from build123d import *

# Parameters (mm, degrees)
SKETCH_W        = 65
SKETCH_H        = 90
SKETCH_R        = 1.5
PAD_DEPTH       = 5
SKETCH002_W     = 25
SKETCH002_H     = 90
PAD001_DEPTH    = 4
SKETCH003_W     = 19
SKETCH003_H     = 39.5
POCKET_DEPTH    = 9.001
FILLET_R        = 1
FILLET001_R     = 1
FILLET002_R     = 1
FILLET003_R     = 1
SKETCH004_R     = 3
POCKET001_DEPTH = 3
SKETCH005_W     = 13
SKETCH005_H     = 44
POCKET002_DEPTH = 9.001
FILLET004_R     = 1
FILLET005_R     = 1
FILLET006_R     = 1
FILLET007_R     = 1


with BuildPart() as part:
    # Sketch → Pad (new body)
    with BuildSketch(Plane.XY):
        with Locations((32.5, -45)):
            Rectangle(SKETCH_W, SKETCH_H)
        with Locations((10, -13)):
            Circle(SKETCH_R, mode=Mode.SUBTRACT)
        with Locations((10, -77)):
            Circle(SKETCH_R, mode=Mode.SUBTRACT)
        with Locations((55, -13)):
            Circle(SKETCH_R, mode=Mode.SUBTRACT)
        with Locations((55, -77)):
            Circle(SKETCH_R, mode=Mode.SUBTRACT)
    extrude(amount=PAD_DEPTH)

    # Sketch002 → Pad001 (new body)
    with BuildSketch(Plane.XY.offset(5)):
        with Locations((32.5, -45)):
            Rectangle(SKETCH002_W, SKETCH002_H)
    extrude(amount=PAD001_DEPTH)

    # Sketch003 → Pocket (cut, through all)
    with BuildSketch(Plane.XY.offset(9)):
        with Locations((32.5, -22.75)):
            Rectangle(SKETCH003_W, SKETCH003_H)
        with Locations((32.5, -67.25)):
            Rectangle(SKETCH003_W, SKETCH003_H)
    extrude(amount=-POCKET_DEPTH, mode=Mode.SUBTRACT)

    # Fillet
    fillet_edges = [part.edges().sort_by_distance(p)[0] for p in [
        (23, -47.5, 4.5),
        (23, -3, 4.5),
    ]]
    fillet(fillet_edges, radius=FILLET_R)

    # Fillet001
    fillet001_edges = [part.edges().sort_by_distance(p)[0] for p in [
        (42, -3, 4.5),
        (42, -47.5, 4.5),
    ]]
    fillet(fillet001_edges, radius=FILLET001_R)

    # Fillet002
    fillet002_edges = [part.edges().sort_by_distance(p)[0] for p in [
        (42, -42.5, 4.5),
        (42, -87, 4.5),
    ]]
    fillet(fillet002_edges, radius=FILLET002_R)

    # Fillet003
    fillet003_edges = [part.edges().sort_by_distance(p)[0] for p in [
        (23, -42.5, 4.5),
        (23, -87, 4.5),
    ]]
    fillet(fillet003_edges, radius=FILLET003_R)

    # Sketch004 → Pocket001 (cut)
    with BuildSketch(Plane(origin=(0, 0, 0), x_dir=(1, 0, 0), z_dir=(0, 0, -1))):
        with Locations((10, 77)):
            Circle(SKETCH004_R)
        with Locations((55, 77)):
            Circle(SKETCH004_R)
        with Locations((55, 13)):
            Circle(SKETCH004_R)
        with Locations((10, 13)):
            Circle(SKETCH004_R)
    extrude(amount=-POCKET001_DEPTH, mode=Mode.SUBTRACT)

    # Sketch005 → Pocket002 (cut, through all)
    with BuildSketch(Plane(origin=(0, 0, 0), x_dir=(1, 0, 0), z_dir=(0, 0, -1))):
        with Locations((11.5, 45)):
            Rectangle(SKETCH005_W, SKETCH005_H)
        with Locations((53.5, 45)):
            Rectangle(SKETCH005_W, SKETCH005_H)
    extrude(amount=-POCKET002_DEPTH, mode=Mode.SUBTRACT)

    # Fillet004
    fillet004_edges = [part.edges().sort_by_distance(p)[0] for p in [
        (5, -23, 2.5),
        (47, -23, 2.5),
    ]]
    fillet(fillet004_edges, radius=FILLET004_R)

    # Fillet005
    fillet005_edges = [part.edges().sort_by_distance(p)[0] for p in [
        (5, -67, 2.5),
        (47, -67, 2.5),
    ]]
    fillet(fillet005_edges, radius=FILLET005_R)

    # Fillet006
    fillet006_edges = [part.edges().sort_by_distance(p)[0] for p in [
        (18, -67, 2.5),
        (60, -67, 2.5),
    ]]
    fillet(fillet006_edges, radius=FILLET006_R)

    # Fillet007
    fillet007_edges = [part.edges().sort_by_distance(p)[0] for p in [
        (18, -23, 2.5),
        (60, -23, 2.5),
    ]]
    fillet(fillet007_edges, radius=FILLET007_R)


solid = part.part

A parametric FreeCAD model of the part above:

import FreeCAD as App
import Part
import Sketcher

V = App.Vector
Q = App.Units.Quantity


def edges_at(feature, points):
    """Names of the edges that pass closest to the given points."""
    edges = feature.Shape.Edges
    near = lambda p: min(range(len(edges)), key=lambda i: edges[i].distToShape(Part.Vertex(*p))[0])
    return sorted({f"Edge{near(p) + 1}" for p in points})

doc = App.newDocument("Part")
params = doc.addObject("Spreadsheet::Sheet", "Params")
for row, (alias, value) in enumerate([
    ("sketch1_diameter", "3 mm"),
    ("sketch1_width", "65 mm"),
    ("sketch1_height", "90 mm"),
    ("pad1_length", "5 mm"),
    ("sketch2_width", "25 mm"),
    ("sketch2_height", "90 mm"),
    ("pad2_length", "4 mm"),
    ("sketch3_width", "19 mm"),
    ("sketch3_height", "39.5 mm"),
    ("fillet_radius", "1 mm"),
    ("fillet2_radius", "1 mm"),
    ("fillet3_radius", "1 mm"),
    ("fillet4_radius", "1 mm"),
    ("sketch4_diameter", "6 mm"),
    ("pocket2_length", "3 mm"),
    ("sketch5_width", "13 mm"),
    ("sketch5_height", "44 mm"),
    ("fillet5_radius", "1 mm"),
    ("fillet6_radius", "1 mm"),
    ("fillet7_radius", "1 mm"),
    ("fillet8_radius", "1 mm"),
], start=1):
    params.set(f"A{row}", alias)
    params.set(f"B{row}", "=" + value)
    params.setAlias(f"B{row}", alias)

body = doc.addObject("PartDesign::Body", "Body")

# Sketch on XY plane
sketch1 = doc.addObject("Sketcher::SketchObject", "Sketch")
body.addObject(sketch1)
sketch1.AttachmentSupport = (doc.XY_Plane, [""])
sketch1.MapMode = "FlatFace"
sketch1.addGeometry([
    Part.LineSegment(V(0, 0, 0), V(0, -90, 0)),  # 0
    Part.LineSegment(V(0, -90, 0), V(65, -90, 0)),  # 1
    Part.LineSegment(V(65, -90, 0), V(65, 0, 0)),  # 2
    Part.LineSegment(V(65, 0, 0), V(0, 0, 0)),  # 3
    Part.Circle(V(10, -77, 0), V(0, 0, 1), 1.5),  # 4
    Part.Circle(V(55, -77, 0), V(0, 0, 1), 1.5),  # 5
    Part.Circle(V(10, -13, 0), V(0, 0, 1), 1.5),  # 6
    Part.Circle(V(55, -13, 0), V(0, 0, 1), 1.5),  # 7
], False)
sketch1.addConstraint([
    Sketcher.Constraint("Coincident", 0, 2, 1, 1),
    Sketcher.Constraint("Coincident", 1, 2, 2, 1),
    Sketcher.Constraint("Coincident", 2, 2, 3, 1),
    Sketcher.Constraint("Coincident", 3, 2, 0, 1),
    Sketcher.Constraint("Vertical", 0),
    Sketcher.Constraint("Horizontal", 1),
    Sketcher.Constraint("Vertical", 2),
    Sketcher.Constraint("Horizontal", 3),
    Sketcher.Constraint("Coincident", 3, 2, -1, 1),
    Sketcher.Constraint("Equal", 4, 5),
    Sketcher.Constraint("Equal", 5, 6),
    Sketcher.Constraint("Equal", 6, 7),
    Sketcher.Constraint("Horizontal", 4, 3, 5, 3),
    Sketcher.Constraint("Horizontal", 6, 3, 7, 3),
    Sketcher.Constraint("Vertical", 4, 3, 6, 3),
    Sketcher.Constraint("Vertical", 5, 3, 7, 3),
    Sketcher.Constraint("Diameter", 4, Q("3 mm")),
    Sketcher.Constraint("DistanceX", 1, 1, 1, 2, Q("65 mm")),
    Sketcher.Constraint("DistanceY", 0, 2, 0, 1, Q("90 mm")),
    Sketcher.Constraint("DistanceX", -1, 1, 4, 3, Q("10 mm")),
    Sketcher.Constraint("DistanceY", 4, 3, -1, 1, Q("77 mm")),
    Sketcher.Constraint("DistanceX", -1, 1, 5, 3, Q("55 mm")),
    Sketcher.Constraint("DistanceY", 6, 3, -1, 1, Q("13 mm")),
])
sketch1.setExpression("Constraints[16]", "Params.sketch1_diameter")
sketch1.setExpression("Constraints[17]", "Params.sketch1_width")
sketch1.setExpression("Constraints[18]", "Params.sketch1_height")
pad1 = doc.addObject("PartDesign::Pad", "Pad")
body.addObject(pad1)
pad1.Profile = sketch1
pad1.setExpression("Length", "Params.pad1_length")

# Sketch on XY plane
sketch2 = doc.addObject("Sketcher::SketchObject", "Sketch001")
body.addObject(sketch2)
sketch2.AttachmentSupport = (doc.XY_Plane, [""])
sketch2.MapMode = "FlatFace"
sketch2.AttachmentOffset = App.Placement(V(0, 0, 5), App.Rotation())
sketch2.addGeometry([
    Part.LineSegment(V(20, 0, 0), V(20, -90, 0)),
    Part.LineSegment(V(20, -90, 0), V(45, -90, 0)),
    Part.LineSegment(V(45, -90, 0), V(45, 0, 0)),
    Part.LineSegment(V(45, 0, 0), V(20, 0, 0)),
], False)
sketch2.addConstraint([
    Sketcher.Constraint("Coincident", 0, 2, 1, 1),
    Sketcher.Constraint("Coincident", 1, 2, 2, 1),
    Sketcher.Constraint("Coincident", 2, 2, 3, 1),
    Sketcher.Constraint("Coincident", 3, 2, 0, 1),
    Sketcher.Constraint("Vertical", 0),
    Sketcher.Constraint("Horizontal", 1),
    Sketcher.Constraint("Vertical", 2),
    Sketcher.Constraint("Horizontal", 3),
    Sketcher.Constraint("PointOnObject", 2, 2, -1),
    Sketcher.Constraint("DistanceX", 1, 1, 1, 2, Q("25 mm")),
    Sketcher.Constraint("DistanceY", 0, 2, 0, 1, Q("90 mm")),
    Sketcher.Constraint("DistanceX", -1, 1, 0, 2, Q("20 mm")),
])
sketch2.setExpression("Constraints[9]", "Params.sketch2_width")
sketch2.setExpression("Constraints[10]", "Params.sketch2_height")
pad2 = doc.addObject("PartDesign::Pad", "Pad001")
body.addObject(pad2)
pad2.Profile = sketch2
pad2.setExpression("Length", "Params.pad2_length")

# Sketch on XY plane
sketch3 = doc.addObject("Sketcher::SketchObject", "Sketch002")
body.addObject(sketch3)
sketch3.AttachmentSupport = (doc.XY_Plane, [""])
sketch3.MapMode = "FlatFace"
sketch3.AttachmentOffset = App.Placement(V(0, 0, 9), App.Rotation())
sketch3.addGeometry([
    Part.LineSegment(V(23, -3, 0), V(23, -42, 0)),  # 0
    Part.LineSegment(V(23, -42, 0), V(42, -42, 0)),  # 1
    Part.LineSegment(V(42, -42, 0), V(42, -3, 0)),  # 2
    Part.LineSegment(V(42, -3, 0), V(23, -3, 0)),  # 3
    Part.LineSegment(V(23, -48, 0), V(23, -87, 0)),  # 4
    Part.LineSegment(V(23, -87, 0), V(42, -87, 0)),  # 5
    Part.LineSegment(V(42, -87, 0), V(42, -48, 0)),  # 6
    Part.LineSegment(V(42, -48, 0), V(23, -48, 0)),  # 7
], False)
sketch3.addConstraint([
    Sketcher.Constraint("Coincident", 0, 2, 1, 1),
    Sketcher.Constraint("Coincident", 1, 2, 2, 1),
    Sketcher.Constraint("Coincident", 2, 2, 3, 1),
    Sketcher.Constraint("Coincident", 3, 2, 0, 1),
    Sketcher.Constraint("Coincident", 4, 2, 5, 1),
    Sketcher.Constraint("Coincident", 5, 2, 6, 1),
    Sketcher.Constraint("Coincident", 6, 2, 7, 1),
    Sketcher.Constraint("Coincident", 7, 2, 4, 1),
    Sketcher.Constraint("Vertical", 0),
    Sketcher.Constraint("Horizontal", 1),
    Sketcher.Constraint("Vertical", 2),
    Sketcher.Constraint("Horizontal", 3),
    Sketcher.Constraint("Vertical", 4),
    Sketcher.Constraint("Horizontal", 5),
    Sketcher.Constraint("Vertical", 6),
    Sketcher.Constraint("Horizontal", 7),
    Sketcher.Constraint("Vertical", 3, 2, 4, 2),
    Sketcher.Constraint("Vertical", 2, 2, 5, 2),
    Sketcher.Constraint("Equal", 2, 4),
    Sketcher.Constraint("DistanceX", 1, 1, 1, 2, Q("19 mm")),
    Sketcher.Constraint("DistanceY", 0, 2, 0, 1, Q("39.5 mm")),
    Sketcher.Constraint("DistanceX", -1, 1, 0, 2, Q("23 mm")),
    Sketcher.Constraint("DistanceY", 2, 2, -1, 1, Q("3 mm")),
    Sketcher.Constraint("DistanceY", 4, 2, -1, 1, Q("87 mm")),
])
sketch3.setExpression("Constraints[19]", "Params.sketch3_width")
sketch3.setExpression("Constraints[20]", "Params.sketch3_height")
pocket1 = doc.addObject("PartDesign::Pocket", "Pocket")
body.addObject(pocket1)
pocket1.Profile = sketch3
pocket1.Type = "ThroughAll"
doc.recompute()

fillet = doc.addObject("PartDesign::Fillet", "Fillet")
body.addObject(fillet)
fillet.Base = (pocket1, edges_at(pocket1, [(23, -47.5, 4.5), (23, -3, 4.5)]))
fillet.setExpression("Radius", "Params.fillet_radius")
doc.recompute()

fillet2 = doc.addObject("PartDesign::Fillet", "Fillet001")
body.addObject(fillet2)
fillet2.Base = (fillet, edges_at(fillet, [(42, -3, 4.5), (42, -47.5, 4.5)]))
fillet2.setExpression("Radius", "Params.fillet2_radius")
doc.recompute()

fillet3 = doc.addObject("PartDesign::Fillet", "Fillet002")
body.addObject(fillet3)
fillet3.Base = (fillet2, edges_at(fillet2, [(42, -42.5, 4.5), (42, -87, 4.5)]))
fillet3.setExpression("Radius", "Params.fillet3_radius")
doc.recompute()

fillet4 = doc.addObject("PartDesign::Fillet", "Fillet003")
body.addObject(fillet4)
fillet4.Base = (fillet3, edges_at(fillet3, [(23, -42.5, 4.5), (23, -87, 4.5)]))
fillet4.setExpression("Radius", "Params.fillet4_radius")

# Sketch on XY plane
sketch4 = doc.addObject("Sketcher::SketchObject", "Sketch003")
body.addObject(sketch4)
sketch4.AttachmentSupport = (doc.XY_Plane, [""])
sketch4.MapMode = "FlatFace"
sketch4.addGeometry([
    Part.Circle(V(10, -77, 0), V(0, 0, 1), 3),
    Part.Circle(V(55, -77, 0), V(0, 0, 1), 3),
    Part.Circle(V(55, -13, 0), V(0, 0, 1), 3),
    Part.Circle(V(10, -13, 0), V(0, 0, 1), 3),
], False)
sketch4.addConstraint([
    Sketcher.Constraint("Equal", 0, 1),
    Sketcher.Constraint("Equal", 1, 2),
    Sketcher.Constraint("Equal", 2, 3),
    Sketcher.Constraint("Horizontal", 0, 3, 1, 3),
    Sketcher.Constraint("Horizontal", 2, 3, 3, 3),
    Sketcher.Constraint("Vertical", 1, 3, 2, 3),
    Sketcher.Constraint("Vertical", 0, 3, 3, 3),
    Sketcher.Constraint("Diameter", 0, Q("6 mm")),
    Sketcher.Constraint("DistanceX", -1, 1, 0, 3, Q("10 mm")),
    Sketcher.Constraint("DistanceY", 0, 3, -1, 1, Q("77 mm")),
    Sketcher.Constraint("DistanceX", -1, 1, 1, 3, Q("55 mm")),
    Sketcher.Constraint("DistanceY", 2, 3, -1, 1, Q("13 mm")),
])
sketch4.setExpression("Constraints[7]", "Params.sketch4_diameter")
pocket2 = doc.addObject("PartDesign::Pocket", "Pocket001")
body.addObject(pocket2)
pocket2.Profile = sketch4
pocket2.setExpression("Length", "Params.pocket2_length")
pocket2.Reversed = True

# Sketch on XY plane
sketch5 = doc.addObject("Sketcher::SketchObject", "Sketch004")
body.addObject(sketch5)
sketch5.AttachmentSupport = (doc.XY_Plane, [""])
sketch5.MapMode = "FlatFace"
sketch5.addGeometry([
    Part.LineSegment(V(5, -67, 0), V(5, -23, 0)),  # 0
    Part.LineSegment(V(5, -23, 0), V(18, -23, 0)),  # 1
    Part.LineSegment(V(18, -23, 0), V(18, -67, 0)),  # 2
    Part.LineSegment(V(18, -67, 0), V(5, -67, 0)),  # 3
    Part.LineSegment(V(47, -67, 0), V(47, -23, 0)),  # 4
    Part.LineSegment(V(47, -23, 0), V(60, -23, 0)),  # 5
    Part.LineSegment(V(60, -23, 0), V(60, -67, 0)),  # 6
    Part.LineSegment(V(60, -67, 0), V(47, -67, 0)),  # 7
], False)
sketch5.addConstraint([
    Sketcher.Constraint("Coincident", 0, 2, 1, 1),
    Sketcher.Constraint("Coincident", 1, 2, 2, 1),
    Sketcher.Constraint("Coincident", 2, 2, 3, 1),
    Sketcher.Constraint("Coincident", 3, 2, 0, 1),
    Sketcher.Constraint("Coincident", 4, 2, 5, 1),
    Sketcher.Constraint("Coincident", 5, 2, 6, 1),
    Sketcher.Constraint("Coincident", 6, 2, 7, 1),
    Sketcher.Constraint("Coincident", 7, 2, 4, 1),
    Sketcher.Constraint("Vertical", 0),
    Sketcher.Constraint("Horizontal", 1),
    Sketcher.Constraint("Vertical", 2),
    Sketcher.Constraint("Horizontal", 3),
    Sketcher.Constraint("Vertical", 4),
    Sketcher.Constraint("Horizontal", 5),
    Sketcher.Constraint("Vertical", 6),
    Sketcher.Constraint("Horizontal", 7),
    Sketcher.Constraint("Horizontal", 1, 2, 4, 2),
    Sketcher.Constraint("Horizontal", 3, 2, 6, 2),
    Sketcher.Constraint("Equal", 3, 5),
    Sketcher.Constraint("DistanceX", 1, 1, 1, 2, Q("13 mm")),
    Sketcher.Constraint("DistanceY", 0, 1, 0, 2, Q("44 mm")),
    Sketcher.Constraint("DistanceX", -1, 1, 0, 2, Q("5 mm")),
    Sketcher.Constraint("DistanceY", 0, 2, -1, 1, Q("23 mm")),
    Sketcher.Constraint("DistanceX", -1, 1, 4, 2, Q("47 mm")),
])
sketch5.setExpression("Constraints[19]", "Params.sketch5_width")
sketch5.setExpression("Constraints[20]", "Params.sketch5_height")
pocket3 = doc.addObject("PartDesign::Pocket", "Pocket002")
body.addObject(pocket3)
pocket3.Profile = sketch5
pocket3.Type = "ThroughAll"
pocket3.Reversed = True
doc.recompute()

fillet5 = doc.addObject("PartDesign::Fillet", "Fillet004")
body.addObject(fillet5)
fillet5.Base = (pocket3, edges_at(pocket3, [(5, -23, 2.5), (47, -23, 2.5)]))
fillet5.setExpression("Radius", "Params.fillet5_radius")
doc.recompute()

fillet6 = doc.addObject("PartDesign::Fillet", "Fillet005")
body.addObject(fillet6)
fillet6.Base = (fillet5, edges_at(fillet5, [(5, -67, 2.5), (47, -67, 2.5)]))
fillet6.setExpression("Radius", "Params.fillet6_radius")
doc.recompute()

fillet7 = doc.addObject("PartDesign::Fillet", "Fillet006")
body.addObject(fillet7)
fillet7.Base = (fillet6, edges_at(fillet6, [(18, -67, 2.5), (60, -67, 2.5)]))
fillet7.setExpression("Radius", "Params.fillet7_radius")
doc.recompute()

fillet8 = doc.addObject("PartDesign::Fillet", "Fillet007")
body.addObject(fillet8)
fillet8.Base = (fillet7, edges_at(fillet7, [(18, -23, 2.5), (60, -23, 2.5)]))
fillet8.setExpression("Radius", "Params.fillet8_radius")

doc.recompute()
